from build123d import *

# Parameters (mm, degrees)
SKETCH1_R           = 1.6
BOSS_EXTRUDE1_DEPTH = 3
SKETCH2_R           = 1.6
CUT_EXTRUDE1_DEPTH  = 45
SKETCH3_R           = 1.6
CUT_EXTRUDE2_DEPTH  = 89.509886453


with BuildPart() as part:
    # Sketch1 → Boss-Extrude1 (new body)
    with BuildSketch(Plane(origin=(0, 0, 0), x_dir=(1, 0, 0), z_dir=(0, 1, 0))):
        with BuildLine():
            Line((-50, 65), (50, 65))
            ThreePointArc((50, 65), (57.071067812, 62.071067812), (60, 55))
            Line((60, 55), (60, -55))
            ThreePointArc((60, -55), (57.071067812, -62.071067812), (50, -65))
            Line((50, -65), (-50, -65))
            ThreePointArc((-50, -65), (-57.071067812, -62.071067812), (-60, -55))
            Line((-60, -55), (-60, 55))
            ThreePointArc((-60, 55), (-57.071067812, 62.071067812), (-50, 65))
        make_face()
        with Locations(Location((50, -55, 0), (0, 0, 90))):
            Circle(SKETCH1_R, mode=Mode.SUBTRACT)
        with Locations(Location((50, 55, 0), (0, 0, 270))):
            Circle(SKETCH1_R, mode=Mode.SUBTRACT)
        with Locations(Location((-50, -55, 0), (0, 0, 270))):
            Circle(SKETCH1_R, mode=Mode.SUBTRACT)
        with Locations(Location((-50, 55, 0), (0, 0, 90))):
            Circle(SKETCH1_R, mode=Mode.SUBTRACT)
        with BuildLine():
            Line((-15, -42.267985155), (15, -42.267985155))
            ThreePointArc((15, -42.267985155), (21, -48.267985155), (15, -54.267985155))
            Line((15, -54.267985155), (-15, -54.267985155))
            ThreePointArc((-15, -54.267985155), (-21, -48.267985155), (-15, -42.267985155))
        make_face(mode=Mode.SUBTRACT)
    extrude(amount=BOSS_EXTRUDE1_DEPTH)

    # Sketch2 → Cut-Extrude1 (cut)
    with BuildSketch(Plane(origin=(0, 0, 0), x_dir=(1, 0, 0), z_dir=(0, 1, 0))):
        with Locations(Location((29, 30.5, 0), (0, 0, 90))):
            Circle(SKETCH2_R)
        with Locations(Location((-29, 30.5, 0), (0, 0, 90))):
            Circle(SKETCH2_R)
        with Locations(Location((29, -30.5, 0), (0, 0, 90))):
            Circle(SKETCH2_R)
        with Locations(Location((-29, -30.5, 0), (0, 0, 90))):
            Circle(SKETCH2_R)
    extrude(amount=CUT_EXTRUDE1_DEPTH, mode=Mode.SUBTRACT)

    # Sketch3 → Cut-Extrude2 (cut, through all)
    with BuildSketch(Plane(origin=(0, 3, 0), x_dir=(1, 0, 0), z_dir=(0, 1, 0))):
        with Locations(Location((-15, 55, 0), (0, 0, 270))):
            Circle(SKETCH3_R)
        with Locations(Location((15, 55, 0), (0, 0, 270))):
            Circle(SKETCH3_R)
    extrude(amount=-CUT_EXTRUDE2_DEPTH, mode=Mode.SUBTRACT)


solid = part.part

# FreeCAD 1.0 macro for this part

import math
import FreeCAD as App
import Part
import Sketcher

doc = App.newDocument("Part")
body = doc.addObject("PartDesign::Body", "Body")

sketch1 = body.newObject("Sketcher::SketchObject", "Sketch")
sketch1.AttachmentSupport = (doc.getObject("XZ_Plane"), [""])
sketch1.MapMode = "FlatFace"
sketch1.addGeometry([
    Part.LineSegment(App.Vector(50, -65, 0), App.Vector(-50, -65, 0)),
    Part.ArcOfCircle(Part.Circle(App.Vector(-50, -55, 0), App.Vector(0, 0, 1), 10), math.radians(180), math.radians(270)),
    Part.LineSegment(App.Vector(-60, -55, 0), App.Vector(-60, 55, 0)),
    Part.ArcOfCircle(Part.Circle(App.Vector(-50, 55, 0), App.Vector(0, 0, 1), 10), math.radians(90), math.radians(180)),
    Part.LineSegment(App.Vector(-50, 65, 0), App.Vector(50, 65, 0)),
    Part.ArcOfCircle(Part.Circle(App.Vector(50, 55, 0), App.Vector(0, 0, 1), 10), math.radians(0), math.radians(90)),
    Part.LineSegment(App.Vector(60, 55, 0), App.Vector(60, -55, 0)),
    Part.ArcOfCircle(Part.Circle(App.Vector(50, -55, 0), App.Vector(0, 0, 1), 10), math.radians(-90), math.radians(0)),
    Part.Circle(App.Vector(50, 55, 0), App.Vector(0, 0, 1), 1.6),
    Part.LineSegment(App.Vector(-15, 42.3, 0), App.Vector(15, 42.3, 0)),
    Part.ArcOfCircle(Part.Circle(App.Vector(15, 48.3, 0), App.Vector(0, 0, 1), 6), math.radians(-90), math.radians(90)),
    Part.LineSegment(App.Vector(15, 54.3, 0), App.Vector(-15, 54.3, 0)),
    Part.ArcOfCircle(Part.Circle(App.Vector(-15, 48.3, 0), App.Vector(0, 0, 1), 6), math.radians(90), math.radians(270)),
    Part.Circle(App.Vector(-50, 55, 0), App.Vector(0, 0, 1), 1.6),
    Part.Circle(App.Vector(50, -55, 0), App.Vector(0, 0, 1), 1.6),
    Part.Circle(App.Vector(-50, -55, 0), App.Vector(0, 0, 1), 1.6),
], False)
sketch1.addConstraint([
    Sketcher.Constraint("Tangent", 0, 2, 1, 2),
    Sketcher.Constraint("Tangent", 1, 1, 2, 1),
    Sketcher.Constraint("Tangent", 2, 2, 3, 2),
    Sketcher.Constraint("Tangent", 3, 1, 4, 1),
    Sketcher.Constraint("Tangent", 4, 2, 5, 2),
    Sketcher.Constraint("Tangent", 5, 1, 6, 1),
    Sketcher.Constraint("Tangent", 6, 2, 7, 2),
    Sketcher.Constraint("Tangent", 7, 1, 0, 1),
    Sketcher.Constraint("Tangent", 9, 2, 10, 1),
    Sketcher.Constraint("Tangent", 10, 2, 11, 1),
    Sketcher.Constraint("Tangent", 11, 2, 12, 1),
    Sketcher.Constraint("Tangent", 12, 2, 9, 1),
    Sketcher.Constraint("Horizontal", 0),
    Sketcher.Constraint("Vertical", 2),
    Sketcher.Constraint("Horizontal", 4),
    Sketcher.Constraint("Vertical", 6),
    Sketcher.Constraint("Horizontal", 9),
    Sketcher.Constraint("Horizontal", 11),
    Sketcher.Constraint("Coincident", 8, 3, 5, 3),
    Sketcher.Constraint("Coincident", 13, 3, 3, 3),
    Sketcher.Constraint("Coincident", 14, 3, 7, 3),
    Sketcher.Constraint("Coincident", 15, 3, 1, 3),
    Sketcher.Constraint("Equal", 1, 3),
    Sketcher.Constraint("Equal", 3, 5),
    Sketcher.Constraint("Equal", 5, 7),
    Sketcher.Constraint("Equal", 8, 13),
    Sketcher.Constraint("Equal", 13, 14),
    Sketcher.Constraint("Equal", 14, 15),
    Sketcher.Constraint("Symmetric", 1, 3, 5, 3, -1, 1),
    Sketcher.Constraint("Radius", 1, 10.0),
    Sketcher.Constraint("Radius", 10, 6.0),
    Sketcher.Constraint("Diameter", 8, 3.2),
    Sketcher.Constraint("DistanceX", 0, 2, 0, 1, 100.0),
    Sketcher.Constraint("DistanceX", 9, 1, 9, 2, 30.0),
    Sketcher.Constraint("DistanceY", 2, 1, 2, 2, 110.0),
    Sketcher.Constraint("DistanceX", -1, 1, 10, 3, 15.0),
    Sketcher.Constraint("DistanceY", -1, 1, 10, 3, 48.267985),
])
pad1 = body.newObject("PartDesign::Pad", "Pad")
pad1.Profile = sketch1
pad1.Length = 3
pad1.Reversed = True

sketch2 = body.newObject("Sketcher::SketchObject", "Sketch001")
sketch2.AttachmentSupport = (doc.getObject("XZ_Plane"), [""])
sketch2.MapMode = "FlatFace"
sketch2.addGeometry([
    Part.Circle(App.Vector(29, -30.5, 0), App.Vector(0, 0, 1), 1.6),
    Part.Circle(App.Vector(-29, -30.5, 0), App.Vector(0, 0, 1), 1.6),
    Part.Circle(App.Vector(29, 30.5, 0), App.Vector(0, 0, 1), 1.6),
    Part.Circle(App.Vector(-29, 30.5, 0), App.Vector(0, 0, 1), 1.6),
], False)
sketch2.addConstraint([
    Sketcher.Constraint("Equal", 0, 1),
    Sketcher.Constraint("Equal", 1, 2),
    Sketcher.Constraint("Equal", 2, 3),
    Sketcher.Constraint("Symmetric", 1, 3, 2, 3, -1, 1),
    Sketcher.Constraint("Symmetric", 0, 3, 3, 3, -1, 1),
    Sketcher.Constraint("Symmetric", 0, 3, 1, 3, -2),
    Sketcher.Constraint("Diameter", 0, 3.2),
    Sketcher.Constraint("DistanceX", -1, 1, 0, 3, 29.0),
    Sketcher.Constraint("DistanceY", 0, 3, 2, 3, 61.0),
])
pocket1 = body.newObject("PartDesign::Pocket", "Pocket")
pocket1.Profile = sketch2
pocket1.Length = 45

sketch3 = body.newObject("Sketcher::SketchObject", "Sketch002")
sketch3.AttachmentSupport = (doc.getObject("XZ_Plane"), [""])
sketch3.MapMode = "FlatFace"
sketch3.AttachmentOffset = App.Placement(App.Vector(0, 0, -3), App.Rotation())
sketch3.addGeometry([
    Part.Circle(App.Vector(-15, -55, 0), App.Vector(0, 0, 1), 1.6),
    Part.Circle(App.Vector(15, -55, 0), App.Vector(0, 0, 1), 1.6),
], False)
sketch3.addConstraint([
    Sketcher.Constraint("Equal", 0, 1),
    Sketcher.Constraint("Symmetric", 0, 3, 1, 3, -2),
    Sketcher.Constraint("Diameter", 0, 3.2),
    Sketcher.Constraint("DistanceX", 0, 3, -1, 1, 15.0),
    Sketcher.Constraint("DistanceY", 0, 3, -1, 1, 55.0),
])
pocket2 = body.newObject("PartDesign::Pocket", "Pocket001")
pocket2.Profile = sketch3
pocket2.Type = "ThroughAll"
pocket2.Reversed = True

doc.recompute()
